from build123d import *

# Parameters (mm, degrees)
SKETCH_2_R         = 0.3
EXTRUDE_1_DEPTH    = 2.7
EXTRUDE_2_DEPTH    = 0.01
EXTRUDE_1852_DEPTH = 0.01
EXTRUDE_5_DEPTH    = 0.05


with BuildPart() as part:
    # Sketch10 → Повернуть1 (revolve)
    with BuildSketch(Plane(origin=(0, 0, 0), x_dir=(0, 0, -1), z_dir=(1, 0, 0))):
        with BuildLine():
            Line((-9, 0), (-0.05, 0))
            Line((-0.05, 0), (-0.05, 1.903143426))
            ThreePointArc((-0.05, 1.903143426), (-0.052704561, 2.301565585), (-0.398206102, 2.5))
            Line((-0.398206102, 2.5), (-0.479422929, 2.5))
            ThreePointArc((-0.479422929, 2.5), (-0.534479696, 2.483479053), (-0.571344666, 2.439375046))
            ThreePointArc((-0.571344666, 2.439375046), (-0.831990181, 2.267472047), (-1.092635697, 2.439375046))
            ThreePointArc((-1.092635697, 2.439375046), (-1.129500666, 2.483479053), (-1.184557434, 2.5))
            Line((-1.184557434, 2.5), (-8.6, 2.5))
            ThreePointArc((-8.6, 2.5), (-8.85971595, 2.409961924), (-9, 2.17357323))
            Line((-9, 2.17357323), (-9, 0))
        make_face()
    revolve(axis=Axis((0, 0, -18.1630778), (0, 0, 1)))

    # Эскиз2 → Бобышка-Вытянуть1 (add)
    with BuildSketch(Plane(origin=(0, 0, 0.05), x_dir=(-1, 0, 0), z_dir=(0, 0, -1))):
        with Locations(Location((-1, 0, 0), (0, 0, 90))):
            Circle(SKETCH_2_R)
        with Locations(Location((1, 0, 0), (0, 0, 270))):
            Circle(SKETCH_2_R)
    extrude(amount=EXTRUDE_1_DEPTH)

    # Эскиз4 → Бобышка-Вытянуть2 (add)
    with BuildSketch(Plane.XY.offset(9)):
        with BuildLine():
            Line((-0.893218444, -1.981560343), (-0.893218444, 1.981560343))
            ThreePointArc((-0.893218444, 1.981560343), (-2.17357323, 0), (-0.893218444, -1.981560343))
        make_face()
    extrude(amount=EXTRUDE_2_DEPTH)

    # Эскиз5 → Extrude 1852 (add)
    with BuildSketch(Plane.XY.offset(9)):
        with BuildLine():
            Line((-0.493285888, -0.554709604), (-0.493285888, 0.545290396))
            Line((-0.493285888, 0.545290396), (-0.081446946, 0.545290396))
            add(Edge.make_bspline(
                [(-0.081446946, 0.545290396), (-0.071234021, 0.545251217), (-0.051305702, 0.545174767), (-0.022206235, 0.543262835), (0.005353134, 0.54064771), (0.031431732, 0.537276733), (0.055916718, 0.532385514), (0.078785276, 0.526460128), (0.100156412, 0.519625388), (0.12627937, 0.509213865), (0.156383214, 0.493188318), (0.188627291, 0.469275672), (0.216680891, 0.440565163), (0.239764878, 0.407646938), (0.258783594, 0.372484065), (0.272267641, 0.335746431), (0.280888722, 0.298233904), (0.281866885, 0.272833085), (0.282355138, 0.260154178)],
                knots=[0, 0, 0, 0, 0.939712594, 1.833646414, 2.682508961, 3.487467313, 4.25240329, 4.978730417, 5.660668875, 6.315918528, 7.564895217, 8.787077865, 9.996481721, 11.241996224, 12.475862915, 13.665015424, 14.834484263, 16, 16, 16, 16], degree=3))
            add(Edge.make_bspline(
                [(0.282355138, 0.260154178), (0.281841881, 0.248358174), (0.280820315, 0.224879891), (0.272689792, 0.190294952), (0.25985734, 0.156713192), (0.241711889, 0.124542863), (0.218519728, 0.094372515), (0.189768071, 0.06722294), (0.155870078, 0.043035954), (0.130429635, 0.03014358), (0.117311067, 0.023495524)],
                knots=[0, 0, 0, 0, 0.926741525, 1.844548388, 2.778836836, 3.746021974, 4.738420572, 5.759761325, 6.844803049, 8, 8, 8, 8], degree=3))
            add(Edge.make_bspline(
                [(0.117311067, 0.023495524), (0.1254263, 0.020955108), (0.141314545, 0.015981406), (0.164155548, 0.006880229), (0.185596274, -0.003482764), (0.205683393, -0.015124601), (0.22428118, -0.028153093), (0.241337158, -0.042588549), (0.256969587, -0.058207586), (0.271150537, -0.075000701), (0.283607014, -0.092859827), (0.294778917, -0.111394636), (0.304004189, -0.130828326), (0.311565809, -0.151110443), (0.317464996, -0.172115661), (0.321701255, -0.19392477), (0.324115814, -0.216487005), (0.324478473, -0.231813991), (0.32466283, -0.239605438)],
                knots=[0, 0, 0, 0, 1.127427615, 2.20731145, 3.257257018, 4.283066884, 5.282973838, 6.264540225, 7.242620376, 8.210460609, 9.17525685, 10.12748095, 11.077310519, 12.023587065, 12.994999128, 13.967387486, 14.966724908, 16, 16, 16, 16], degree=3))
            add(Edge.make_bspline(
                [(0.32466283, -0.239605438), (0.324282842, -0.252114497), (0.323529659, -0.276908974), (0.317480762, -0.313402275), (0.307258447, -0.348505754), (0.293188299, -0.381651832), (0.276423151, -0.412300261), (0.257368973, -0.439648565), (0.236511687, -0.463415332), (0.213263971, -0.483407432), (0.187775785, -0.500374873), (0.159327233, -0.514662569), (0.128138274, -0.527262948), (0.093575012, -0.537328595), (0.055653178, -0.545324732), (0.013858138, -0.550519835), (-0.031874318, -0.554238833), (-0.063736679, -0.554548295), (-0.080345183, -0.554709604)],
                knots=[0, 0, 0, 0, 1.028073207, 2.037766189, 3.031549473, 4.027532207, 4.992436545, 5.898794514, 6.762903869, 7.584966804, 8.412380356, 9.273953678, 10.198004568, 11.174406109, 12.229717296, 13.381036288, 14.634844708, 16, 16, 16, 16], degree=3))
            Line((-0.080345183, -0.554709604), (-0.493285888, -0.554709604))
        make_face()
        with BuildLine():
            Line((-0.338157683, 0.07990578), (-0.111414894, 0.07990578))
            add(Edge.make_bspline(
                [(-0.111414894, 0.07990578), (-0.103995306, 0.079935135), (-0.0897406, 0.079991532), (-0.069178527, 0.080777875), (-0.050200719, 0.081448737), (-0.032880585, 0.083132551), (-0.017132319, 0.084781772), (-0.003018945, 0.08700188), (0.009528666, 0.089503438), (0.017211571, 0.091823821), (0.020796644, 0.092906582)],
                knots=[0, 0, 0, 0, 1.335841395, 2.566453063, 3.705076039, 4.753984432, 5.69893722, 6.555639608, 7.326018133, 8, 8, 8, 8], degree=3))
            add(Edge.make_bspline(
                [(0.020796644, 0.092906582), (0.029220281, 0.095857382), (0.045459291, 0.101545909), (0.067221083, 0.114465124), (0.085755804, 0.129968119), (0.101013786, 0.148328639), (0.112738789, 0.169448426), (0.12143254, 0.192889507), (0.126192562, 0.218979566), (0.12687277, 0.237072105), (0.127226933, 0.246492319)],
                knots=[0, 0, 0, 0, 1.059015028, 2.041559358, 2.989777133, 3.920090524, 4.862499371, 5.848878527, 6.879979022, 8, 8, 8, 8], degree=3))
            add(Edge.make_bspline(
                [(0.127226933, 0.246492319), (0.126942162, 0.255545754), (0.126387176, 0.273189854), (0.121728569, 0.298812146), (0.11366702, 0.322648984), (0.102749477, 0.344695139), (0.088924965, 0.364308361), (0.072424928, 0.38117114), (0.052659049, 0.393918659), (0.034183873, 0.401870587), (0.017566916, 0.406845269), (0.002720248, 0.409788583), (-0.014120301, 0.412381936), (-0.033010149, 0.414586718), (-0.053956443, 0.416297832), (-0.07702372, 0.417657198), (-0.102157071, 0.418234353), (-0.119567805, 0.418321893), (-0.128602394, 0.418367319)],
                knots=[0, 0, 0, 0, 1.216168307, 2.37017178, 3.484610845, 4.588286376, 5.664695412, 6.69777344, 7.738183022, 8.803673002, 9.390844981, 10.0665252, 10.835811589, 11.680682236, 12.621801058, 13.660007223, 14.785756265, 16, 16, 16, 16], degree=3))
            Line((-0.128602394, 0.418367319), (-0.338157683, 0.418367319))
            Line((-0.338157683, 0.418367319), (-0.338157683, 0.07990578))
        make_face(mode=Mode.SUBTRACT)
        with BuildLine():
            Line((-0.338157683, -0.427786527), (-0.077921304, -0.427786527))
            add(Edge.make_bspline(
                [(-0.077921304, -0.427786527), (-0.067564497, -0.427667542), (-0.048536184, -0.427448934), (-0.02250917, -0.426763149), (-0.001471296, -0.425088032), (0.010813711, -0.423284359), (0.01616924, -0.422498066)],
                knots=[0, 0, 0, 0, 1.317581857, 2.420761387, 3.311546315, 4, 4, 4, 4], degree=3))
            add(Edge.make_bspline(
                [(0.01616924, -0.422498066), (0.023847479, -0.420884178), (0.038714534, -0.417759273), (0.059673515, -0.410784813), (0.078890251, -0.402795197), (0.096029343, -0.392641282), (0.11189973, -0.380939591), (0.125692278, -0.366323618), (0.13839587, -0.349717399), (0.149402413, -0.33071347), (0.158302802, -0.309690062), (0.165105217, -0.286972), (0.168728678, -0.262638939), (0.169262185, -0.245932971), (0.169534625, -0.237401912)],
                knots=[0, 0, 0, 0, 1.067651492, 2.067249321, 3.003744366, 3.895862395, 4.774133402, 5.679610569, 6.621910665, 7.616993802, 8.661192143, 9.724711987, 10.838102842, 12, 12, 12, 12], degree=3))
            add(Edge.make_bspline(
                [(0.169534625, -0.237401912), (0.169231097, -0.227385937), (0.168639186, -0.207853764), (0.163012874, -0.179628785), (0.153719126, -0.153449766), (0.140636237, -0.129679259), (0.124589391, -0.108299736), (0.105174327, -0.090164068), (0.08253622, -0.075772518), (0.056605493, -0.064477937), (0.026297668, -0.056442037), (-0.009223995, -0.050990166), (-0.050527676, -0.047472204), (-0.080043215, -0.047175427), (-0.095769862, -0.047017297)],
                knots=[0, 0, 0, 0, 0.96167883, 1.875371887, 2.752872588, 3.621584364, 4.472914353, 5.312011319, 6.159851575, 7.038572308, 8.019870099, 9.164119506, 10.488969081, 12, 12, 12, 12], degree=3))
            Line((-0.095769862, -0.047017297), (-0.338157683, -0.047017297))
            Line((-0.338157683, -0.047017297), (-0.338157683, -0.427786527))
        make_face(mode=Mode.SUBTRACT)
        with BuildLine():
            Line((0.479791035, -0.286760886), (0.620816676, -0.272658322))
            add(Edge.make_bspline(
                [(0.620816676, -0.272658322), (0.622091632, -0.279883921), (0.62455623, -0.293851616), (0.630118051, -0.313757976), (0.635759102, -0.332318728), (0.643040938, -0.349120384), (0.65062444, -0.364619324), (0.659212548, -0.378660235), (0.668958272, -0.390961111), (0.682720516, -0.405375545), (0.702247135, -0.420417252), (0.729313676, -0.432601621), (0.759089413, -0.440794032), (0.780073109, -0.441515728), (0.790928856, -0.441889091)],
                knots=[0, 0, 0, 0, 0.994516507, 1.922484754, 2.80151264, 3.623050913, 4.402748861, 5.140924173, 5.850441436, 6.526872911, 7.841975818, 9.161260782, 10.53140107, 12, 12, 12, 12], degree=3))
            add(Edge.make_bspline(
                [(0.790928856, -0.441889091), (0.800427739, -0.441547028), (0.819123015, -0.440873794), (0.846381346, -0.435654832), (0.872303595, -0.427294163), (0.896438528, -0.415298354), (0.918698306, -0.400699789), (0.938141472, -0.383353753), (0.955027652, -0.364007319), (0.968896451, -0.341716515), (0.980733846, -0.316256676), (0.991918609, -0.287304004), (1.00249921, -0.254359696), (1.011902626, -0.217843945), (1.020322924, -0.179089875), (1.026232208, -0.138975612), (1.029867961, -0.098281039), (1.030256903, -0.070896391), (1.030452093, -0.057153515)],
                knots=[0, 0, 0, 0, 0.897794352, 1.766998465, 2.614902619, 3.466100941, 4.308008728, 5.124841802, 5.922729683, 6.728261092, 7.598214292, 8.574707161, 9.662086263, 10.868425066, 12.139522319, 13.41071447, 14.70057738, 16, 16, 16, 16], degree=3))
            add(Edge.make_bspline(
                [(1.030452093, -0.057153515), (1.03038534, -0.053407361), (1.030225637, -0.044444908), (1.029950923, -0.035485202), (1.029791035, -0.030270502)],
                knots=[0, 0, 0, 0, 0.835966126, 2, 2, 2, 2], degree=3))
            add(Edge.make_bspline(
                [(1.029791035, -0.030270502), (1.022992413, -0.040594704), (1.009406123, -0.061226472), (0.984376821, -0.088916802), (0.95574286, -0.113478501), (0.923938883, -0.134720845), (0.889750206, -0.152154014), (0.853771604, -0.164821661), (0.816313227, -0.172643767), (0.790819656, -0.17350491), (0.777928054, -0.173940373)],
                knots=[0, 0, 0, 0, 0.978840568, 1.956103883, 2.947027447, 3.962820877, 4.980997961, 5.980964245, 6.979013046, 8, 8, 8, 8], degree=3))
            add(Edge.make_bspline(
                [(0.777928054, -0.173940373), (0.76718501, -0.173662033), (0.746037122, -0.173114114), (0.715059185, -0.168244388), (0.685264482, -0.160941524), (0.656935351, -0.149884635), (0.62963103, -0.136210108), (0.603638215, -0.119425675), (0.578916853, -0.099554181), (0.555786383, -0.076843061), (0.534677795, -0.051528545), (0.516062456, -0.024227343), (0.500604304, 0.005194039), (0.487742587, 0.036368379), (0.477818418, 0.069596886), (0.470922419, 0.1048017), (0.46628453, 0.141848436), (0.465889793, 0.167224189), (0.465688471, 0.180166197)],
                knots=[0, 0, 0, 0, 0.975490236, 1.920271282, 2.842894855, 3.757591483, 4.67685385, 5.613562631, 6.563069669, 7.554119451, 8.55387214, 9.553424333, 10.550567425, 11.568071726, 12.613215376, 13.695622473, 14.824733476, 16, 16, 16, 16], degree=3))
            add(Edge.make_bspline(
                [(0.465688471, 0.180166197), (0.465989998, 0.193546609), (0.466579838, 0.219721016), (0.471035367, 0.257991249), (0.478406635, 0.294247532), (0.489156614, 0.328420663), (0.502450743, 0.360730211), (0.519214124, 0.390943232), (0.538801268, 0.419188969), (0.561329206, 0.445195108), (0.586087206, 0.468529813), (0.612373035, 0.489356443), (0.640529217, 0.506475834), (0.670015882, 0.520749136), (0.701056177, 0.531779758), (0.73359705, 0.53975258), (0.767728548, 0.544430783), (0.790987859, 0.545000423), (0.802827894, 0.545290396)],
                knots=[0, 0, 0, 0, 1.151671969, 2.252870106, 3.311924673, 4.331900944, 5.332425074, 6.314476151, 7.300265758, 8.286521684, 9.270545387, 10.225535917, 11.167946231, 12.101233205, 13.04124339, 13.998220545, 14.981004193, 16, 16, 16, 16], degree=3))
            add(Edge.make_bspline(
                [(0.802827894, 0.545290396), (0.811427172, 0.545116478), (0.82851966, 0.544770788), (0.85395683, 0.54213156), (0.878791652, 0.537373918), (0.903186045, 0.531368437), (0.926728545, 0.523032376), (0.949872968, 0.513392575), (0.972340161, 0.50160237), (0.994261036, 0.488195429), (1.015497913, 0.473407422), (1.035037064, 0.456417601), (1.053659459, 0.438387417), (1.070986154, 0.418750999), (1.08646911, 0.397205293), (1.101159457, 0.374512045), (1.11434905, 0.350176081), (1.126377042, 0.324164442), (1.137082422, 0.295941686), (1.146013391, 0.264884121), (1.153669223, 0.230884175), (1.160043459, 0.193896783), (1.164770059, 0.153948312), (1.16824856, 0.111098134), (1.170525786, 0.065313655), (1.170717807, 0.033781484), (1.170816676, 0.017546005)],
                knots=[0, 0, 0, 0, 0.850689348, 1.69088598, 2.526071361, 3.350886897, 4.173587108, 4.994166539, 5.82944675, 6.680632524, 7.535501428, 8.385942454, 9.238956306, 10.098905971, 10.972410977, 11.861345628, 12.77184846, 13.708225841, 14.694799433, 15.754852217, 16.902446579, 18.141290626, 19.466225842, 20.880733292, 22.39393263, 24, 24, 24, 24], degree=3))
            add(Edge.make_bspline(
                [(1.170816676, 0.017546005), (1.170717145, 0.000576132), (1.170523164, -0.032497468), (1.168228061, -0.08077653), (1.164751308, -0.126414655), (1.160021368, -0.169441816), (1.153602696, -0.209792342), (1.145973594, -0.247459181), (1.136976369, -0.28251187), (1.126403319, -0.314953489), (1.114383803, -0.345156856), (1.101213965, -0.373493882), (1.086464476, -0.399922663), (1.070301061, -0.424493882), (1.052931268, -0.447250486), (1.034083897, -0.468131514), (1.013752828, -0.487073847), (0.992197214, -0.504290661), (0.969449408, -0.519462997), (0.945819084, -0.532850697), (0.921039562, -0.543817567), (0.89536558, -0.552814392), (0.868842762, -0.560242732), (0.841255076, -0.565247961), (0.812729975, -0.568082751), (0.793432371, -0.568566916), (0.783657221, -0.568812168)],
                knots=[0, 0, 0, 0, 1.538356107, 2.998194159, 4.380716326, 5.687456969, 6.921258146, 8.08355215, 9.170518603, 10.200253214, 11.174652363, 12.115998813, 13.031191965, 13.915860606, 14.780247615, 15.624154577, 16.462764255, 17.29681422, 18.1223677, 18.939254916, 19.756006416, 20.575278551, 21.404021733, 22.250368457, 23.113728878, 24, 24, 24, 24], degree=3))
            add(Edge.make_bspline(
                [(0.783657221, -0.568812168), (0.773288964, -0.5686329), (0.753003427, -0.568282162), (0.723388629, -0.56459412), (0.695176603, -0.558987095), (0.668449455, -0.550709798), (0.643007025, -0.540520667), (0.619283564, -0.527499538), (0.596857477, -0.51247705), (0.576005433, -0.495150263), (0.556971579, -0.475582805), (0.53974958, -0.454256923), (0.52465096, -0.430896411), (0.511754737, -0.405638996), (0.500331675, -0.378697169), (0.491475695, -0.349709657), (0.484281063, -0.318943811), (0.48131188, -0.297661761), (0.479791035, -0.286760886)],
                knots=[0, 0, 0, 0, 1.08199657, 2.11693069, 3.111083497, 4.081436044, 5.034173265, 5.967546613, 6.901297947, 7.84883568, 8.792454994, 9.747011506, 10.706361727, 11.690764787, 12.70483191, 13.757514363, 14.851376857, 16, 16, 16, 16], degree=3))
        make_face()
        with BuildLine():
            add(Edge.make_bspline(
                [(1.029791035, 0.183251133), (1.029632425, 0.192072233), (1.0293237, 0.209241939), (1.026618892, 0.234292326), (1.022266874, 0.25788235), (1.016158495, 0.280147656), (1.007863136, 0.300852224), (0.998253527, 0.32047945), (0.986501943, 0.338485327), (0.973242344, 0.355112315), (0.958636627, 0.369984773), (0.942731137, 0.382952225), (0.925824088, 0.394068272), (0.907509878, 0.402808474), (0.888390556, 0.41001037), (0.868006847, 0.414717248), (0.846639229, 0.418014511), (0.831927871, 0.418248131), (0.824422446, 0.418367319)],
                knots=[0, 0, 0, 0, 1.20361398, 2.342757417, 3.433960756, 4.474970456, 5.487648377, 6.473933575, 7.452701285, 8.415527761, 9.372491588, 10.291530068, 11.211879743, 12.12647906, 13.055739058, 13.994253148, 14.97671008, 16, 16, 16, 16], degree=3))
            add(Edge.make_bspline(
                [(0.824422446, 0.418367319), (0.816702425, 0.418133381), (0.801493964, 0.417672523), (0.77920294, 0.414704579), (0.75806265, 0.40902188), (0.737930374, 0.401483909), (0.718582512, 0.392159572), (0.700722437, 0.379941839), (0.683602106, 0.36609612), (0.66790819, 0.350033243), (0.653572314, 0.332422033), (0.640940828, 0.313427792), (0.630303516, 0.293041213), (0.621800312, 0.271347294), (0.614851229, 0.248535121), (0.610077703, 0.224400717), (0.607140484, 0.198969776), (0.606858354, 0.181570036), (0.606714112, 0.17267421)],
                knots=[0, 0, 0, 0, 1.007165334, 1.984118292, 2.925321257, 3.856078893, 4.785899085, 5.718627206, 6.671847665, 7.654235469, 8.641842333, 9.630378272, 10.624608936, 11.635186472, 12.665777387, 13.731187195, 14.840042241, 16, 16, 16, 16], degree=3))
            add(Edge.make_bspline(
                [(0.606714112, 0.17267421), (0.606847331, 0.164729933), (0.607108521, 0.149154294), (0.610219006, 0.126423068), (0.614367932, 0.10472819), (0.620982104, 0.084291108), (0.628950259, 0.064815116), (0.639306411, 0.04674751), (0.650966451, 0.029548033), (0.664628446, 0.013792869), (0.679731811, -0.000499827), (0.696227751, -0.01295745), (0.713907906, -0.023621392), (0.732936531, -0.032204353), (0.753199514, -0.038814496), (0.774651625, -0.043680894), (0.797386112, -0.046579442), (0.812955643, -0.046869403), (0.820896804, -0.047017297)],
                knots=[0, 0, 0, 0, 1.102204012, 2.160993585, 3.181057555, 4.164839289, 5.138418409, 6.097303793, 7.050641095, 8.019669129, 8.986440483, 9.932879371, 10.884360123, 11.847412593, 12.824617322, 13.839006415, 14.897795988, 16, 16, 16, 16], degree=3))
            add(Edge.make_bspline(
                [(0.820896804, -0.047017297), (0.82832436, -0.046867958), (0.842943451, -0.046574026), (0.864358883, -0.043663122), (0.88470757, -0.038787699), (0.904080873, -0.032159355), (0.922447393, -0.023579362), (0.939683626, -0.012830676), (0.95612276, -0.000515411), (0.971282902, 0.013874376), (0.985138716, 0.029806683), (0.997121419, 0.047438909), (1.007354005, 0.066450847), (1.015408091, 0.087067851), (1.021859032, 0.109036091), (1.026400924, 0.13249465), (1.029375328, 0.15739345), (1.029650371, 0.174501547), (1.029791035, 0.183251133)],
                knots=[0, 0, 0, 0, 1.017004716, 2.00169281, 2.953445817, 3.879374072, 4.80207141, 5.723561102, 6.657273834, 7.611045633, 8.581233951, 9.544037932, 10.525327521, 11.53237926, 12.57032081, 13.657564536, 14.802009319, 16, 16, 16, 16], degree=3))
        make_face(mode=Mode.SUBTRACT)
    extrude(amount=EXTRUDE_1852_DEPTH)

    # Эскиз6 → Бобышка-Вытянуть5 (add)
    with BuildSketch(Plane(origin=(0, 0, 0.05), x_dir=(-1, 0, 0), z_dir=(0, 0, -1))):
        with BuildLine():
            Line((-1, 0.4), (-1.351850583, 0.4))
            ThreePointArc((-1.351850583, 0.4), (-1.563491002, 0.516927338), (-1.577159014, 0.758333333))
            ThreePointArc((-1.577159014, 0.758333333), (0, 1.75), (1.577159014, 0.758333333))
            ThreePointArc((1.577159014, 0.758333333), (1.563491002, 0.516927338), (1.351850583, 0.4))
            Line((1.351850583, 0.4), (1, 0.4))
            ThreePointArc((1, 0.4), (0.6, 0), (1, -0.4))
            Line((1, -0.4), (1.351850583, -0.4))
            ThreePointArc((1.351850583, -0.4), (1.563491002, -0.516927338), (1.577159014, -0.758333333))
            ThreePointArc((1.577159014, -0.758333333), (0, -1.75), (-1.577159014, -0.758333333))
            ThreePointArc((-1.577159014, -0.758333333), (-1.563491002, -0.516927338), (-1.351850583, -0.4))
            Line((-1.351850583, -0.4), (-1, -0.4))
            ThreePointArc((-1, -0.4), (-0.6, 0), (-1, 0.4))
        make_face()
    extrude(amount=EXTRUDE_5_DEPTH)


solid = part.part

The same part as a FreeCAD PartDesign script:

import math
import FreeCAD as App
import Part
import Sketcher
Q = App.Units.Quantity

doc = App.newDocument("Part")
body = doc.addObject("PartDesign::Body", "Body")

sketch1 = body.newObject("Sketcher::SketchObject", "Sketch")
sketch1.AttachmentSupport = (doc.getObject("YZ_Plane"), [""])
sketch1.MapMode = "FlatFace"
sketch1.addGeometry([
    Part.LineSegment(App.Vector(0, 9, 0), App.Vector(0, 0.05, 0)),
    Part.LineSegment(App.Vector(0, 0.05, 0), App.Vector(1.9, 0.05, 0)),
    Part.ArcOfCircle(Part.Circle(App.Vector(2.1, 0.4, 0), App.Vector(0, 0, 1), 0.4), math.radians(-119), math.radians(0)),
    Part.LineSegment(App.Vector(2.5, 0.4, 0), App.Vector(2.5, 0.48, 0)),
    Part.ArcOfCircle(Part.Circle(App.Vector(2.4, 0.48, 0), App.Vector(0, 0, 1), 0.1), math.radians(0), math.radians(67)),
    Part.ArcOfCircle(Part.Circle(App.Vector(2.55, 0.83, 0), App.Vector(0, 0, 1), 0.28), math.radians(113), math.radians(247)),
    Part.ArcOfCircle(Part.Circle(App.Vector(2.4, 1.18, 0), App.Vector(0, 0, 1), 0.1), math.radians(-67), math.radians(0)),
    Part.LineSegment(App.Vector(2.5, 1.18, 0), App.Vector(2.5, 8.6, 0)),
    Part.ArcOfCircle(Part.Circle(App.Vector(2.1, 8.61, 0), App.Vector(0, 0, 1), 0.4), math.radians(-1), math.radians(79)),
    Part.LineSegment(App.Vector(2.17, 9, 0), App.Vector(0, 9, 0)),
], False)
sketch1.addConstraint([
    Sketcher.Constraint("Coincident", 0, 2, 1, 1),
    Sketcher.Constraint("Coincident", 1, 2, 2, 1),
    Sketcher.Constraint("Tangent", 2, 2, 3, 1),
    Sketcher.Constraint("Tangent", 3, 2, 4, 1),
    Sketcher.Constraint("Tangent", 4, 2, 5, 2),
    Sketcher.Constraint("Tangent", 5, 1, 6, 1),
    Sketcher.Constraint("Tangent", 6, 2, 7, 1),
    Sketcher.Constraint("Coincident", 7, 2, 8, 1),
    Sketcher.Constraint("Coincident", 8, 2, 9, 1),
    Sketcher.Constraint("Coincident", 9, 2, 0, 1),
    Sketcher.Constraint("Vertical", 0),
    Sketcher.Constraint("Horizontal", 1),
    Sketcher.Constraint("Vertical", 3),
    Sketcher.Constraint("Vertical", 7),
    Sketcher.Constraint("Horizontal", 9),
    Sketcher.Constraint("Equal", 4, 6),
    Sketcher.Constraint("Equal", 2, 8),
    Sketcher.Constraint("PointOnObject", 0, 2, -2),
    Sketcher.Constraint("Vertical", 4, 3, 6, 3),
    Sketcher.Constraint("Radius", 2, Q("0.4 mm")),
    Sketcher.Constraint("Radius", 4, Q("0.1 mm")),
    Sketcher.Constraint("DistanceY", -1, 1, 8, 2, Q("9 mm")),
    Sketcher.Constraint("DistanceY", 0, 2, 0, 1, Q("8.95 mm")),
    Sketcher.Constraint("DistanceX", -1, 1, 2, 3, Q("2.1 mm")),
    Sketcher.Constraint("DistanceY", -1, 1, 7, 2, Q("8.6 mm")),
    Sketcher.Constraint("Radius", 5, Q("0.283552 mm")),
    Sketcher.Constraint("DistanceX", 8, 2, 5, 1, Q("0.265802 mm")),
    Sketcher.Constraint("DistanceX", 1, 1, 1, 2, Q("1.903143 mm")),
    Sketcher.Constraint("DistanceX", 9, 2, 9, 1, Q("2.173573 mm")),
    Sketcher.Constraint("DistanceY", 3, 1, 3, 2, Q("0.081217 mm")),
])
revolution = body.newObject("PartDesign::Revolution", "Revolution")
revolution.Profile = sketch1
revolution.ReferenceAxis = (sketch1, ["V_Axis"])
revolution.Angle = 360

sketch2 = body.newObject("Sketcher::SketchObject", "Sketch001")
sketch2.AttachmentSupport = (doc.getObject("XY_Plane"), [""])
sketch2.MapMode = "FlatFace"
sketch2.AttachmentOffset = App.Placement(App.Vector(0, 0, 0.05), App.Rotation())
sketch2.addGeometry([
    Part.Circle(App.Vector(1, 0, 0), App.Vector(0, 0, 1), 0.3),
    Part.Circle(App.Vector(-1, 0, 0), App.Vector(0, 0, 1), 0.3),
], False)
sketch2.addConstraint([
    Sketcher.Constraint("Equal", 0, 1),
    Sketcher.Constraint("Symmetric", 0, 3, 1, 3, -1, 1),
    Sketcher.Constraint("PointOnObject", 0, 3, -1),
    Sketcher.Constraint("Diameter", 0, Q("0.6 mm")),
    Sketcher.Constraint("DistanceX", -1, 1, 0, 3, Q("1 mm")),
])
pad1 = body.newObject("PartDesign::Pad", "Pad")
pad1.Profile = sketch2
pad1.Length = 2.7
pad1.Reversed = True

sketch3 = body.newObject("Sketcher::SketchObject", "Sketch002")
sketch3.AttachmentSupport = (doc.getObject("XY_Plane"), [""])
sketch3.MapMode = "FlatFace"
sketch3.AttachmentOffset = App.Placement(App.Vector(0, 0, 9), App.Rotation())
sketch3.addGeometry([
    Part.LineSegment(App.Vector(-0.9, -2, 0), App.Vector(-0.9, 2, 0)),
    Part.ArcOfCircle(Part.Circle(App.Vector(0, 0, 0), App.Vector(0, 0, 1), 2.2), math.radians(114), math.radians(246)),
], False)
sketch3.addConstraint([
    Sketcher.Constraint("Coincident", 0, 1, 1, 2),
    Sketcher.Constraint("Coincident", 1, 1, 0, 2),
    Sketcher.Constraint("Vertical", 0),
    Sketcher.Constraint("Coincident", 1, 3, -1, 1),
    Sketcher.Constraint("Radius", 1, Q("2.173573 mm")),
    Sketcher.Constraint("DistanceY", 0, 1, 0, 2, Q("3.963121 mm")),
])
pad2 = body.newObject("PartDesign::Pad", "Pad001")
pad2.Profile = sketch3
pad2.Length = 0.01

sketch4 = body.newObject("Sketcher::SketchObject", "Sketch003")
sketch4.AttachmentSupport = (doc.getObject("XY_Plane"), [""])
sketch4.MapMode = "FlatFace"
sketch4.AttachmentOffset = App.Placement(App.Vector(0, 0, 9), App.Rotation())
sketch4.addGeometry([
    Part.LineSegment(App.Vector(-0.493286, 0.54529, 0), App.Vector(-0.493286, -0.55471, 0)),
    Part.LineSegment(App.Vector(-0.493286, -0.55471, 0), App.Vector(-0.080345, -0.55471, 0)),
    Part.BSplineCurve([App.Vector(0.324663, -0.239605, 0), App.Vector(0.324283, -0.252114, 0), App.Vector(0.32353, -0.276909, 0), App.Vector(0.317481, -0.313402, 0), App.Vector(0.307258, -0.348506, 0), App.Vector(0.293188, -0.381652, 0), App.Vector(0.276423, -0.4123, 0), App.Vector(0.257369, -0.439649, 0), App.Vector(0.236512, -0.463415, 0), App.Vector(0.213264, -0.483407, 0), App.Vector(0.187776, -0.500375, 0), App.Vector(0.159327, -0.514663, 0), App.Vector(0.128138, -0.527263, 0), App.Vector(0.093575, -0.537329, 0), App.Vector(0.055653, -0.545325, 0), App.Vector(0.013858, -0.55052, 0), App.Vector(-0.031874, -0.554239, 0), App.Vector(-0.063737, -0.554548, 0), App.Vector(-0.080345, -0.55471, 0)], [4, 1, 1, 1, 1, 1, 1, 1, 1, 1, 1, 1, 1, 1, 1, 1, 4], [0, 1.028073207, 2.037766189, 3.031549473, 4.027532207, 4.992436545, 5.898794514, 6.762903869, 7.584966804, 8.412380356, 9.273953678, 10.198004568, 11.174406109, 12.229717296, 13.381036288, 14.634844708, 16], False, 3, [1, 1, 1, 1, 1, 1, 1, 1, 1, 1, 1, 1, 1, 1, 1, 1, 1, 1, 1], False),
    Part.BSplineCurve([App.Vector(0.117311, 0.023496, 0), App.Vector(0.125426, 0.020955, 0), App.Vector(0.141315, 0.015981, 0), App.Vector(0.164156, 0.00688, 0), App.Vector(0.185596, -0.003483, 0), App.Vector(0.205683, -0.015125, 0), App.Vector(0.224281, -0.028153, 0), App.Vector(0.241337, -0.042589, 0), App.Vector(0.25697, -0.058208, 0), App.Vector(0.271151, -0.075001, 0), App.Vector(0.283607, -0.09286, 0), App.Vector(0.294779, -0.111395, 0), App.Vector(0.304004, -0.130828, 0), App.Vector(0.311566, -0.15111, 0), App.Vector(0.317465, -0.172116, 0), App.Vector(0.321701, -0.193925, 0), App.Vector(0.324116, -0.216487, 0), App.Vector(0.324478, -0.231814, 0), App.Vector(0.324663, -0.239605, 0)], [4, 1, 1, 1, 1, 1, 1, 1, 1, 1, 1, 1, 1, 1, 1, 1, 4], [0, 1.127427615, 2.20731145, 3.257257018, 4.283066884, 5.282973838, 6.264540225, 7.242620376, 8.210460609, 9.17525685, 10.12748095, 11.077310519, 12.023587065, 12.994999128, 13.967387486, 14.966724908, 16], False, 3, [1, 1, 1, 1, 1, 1, 1, 1, 1, 1, 1, 1, 1, 1, 1, 1, 1, 1, 1], False),
    Part.BSplineCurve([App.Vector(0.282355, 0.260154, 0), App.Vector(0.281842, 0.248358, 0), App.Vector(0.28082, 0.22488, 0), App.Vector(0.27269, 0.190295, 0), App.Vector(0.259857, 0.156713, 0), App.Vector(0.241712, 0.124543, 0), App.Vector(0.21852, 0.094373, 0), App.Vector(0.189768, 0.067223, 0), App.Vector(0.15587, 0.043036, 0), App.Vector(0.13043, 0.030144, 0), App.Vector(0.117311, 0.023496, 0)], [4, 1, 1, 1, 1, 1, 1, 1, 4], [0, 0.926741525, 1.844548388, 2.778836836, 3.746021974, 4.738420572, 5.759761325, 6.844803049, 8], False, 3, [1, 1, 1, 1, 1, 1, 1, 1, 1, 1, 1], False),
    Part.BSplineCurve([App.Vector(-0.081447, 0.54529, 0), App.Vector(-0.071234, 0.545251, 0), App.Vector(-0.051306, 0.545175, 0), App.Vector(-0.022206, 0.543263, 0), App.Vector(0.005353, 0.540648, 0), App.Vector(0.031432, 0.537277, 0), App.Vector(0.055917, 0.532386, 0), App.Vector(0.078785, 0.52646, 0), App.Vector(0.100156, 0.519625, 0), App.Vector(0.126279, 0.509214, 0), App.Vector(0.156383, 0.493188, 0), App.Vector(0.188627, 0.469276, 0), App.Vector(0.216681, 0.440565, 0), App.Vector(0.239765, 0.407647, 0), App.Vector(0.258784, 0.372484, 0), App.Vector(0.272268, 0.335746, 0), App.Vector(0.280889, 0.298234, 0), App.Vector(0.281867, 0.272833, 0), App.Vector(0.282355, 0.260154, 0)], [4, 1, 1, 1, 1, 1, 1, 1, 1, 1, 1, 1, 1, 1, 1, 1, 4], [0, 0.939712594, 1.833646414, 2.682508961, 3.487467313, 4.25240329, 4.978730417, 5.660668875, 6.315918528, 7.564895217, 8.787077865, 9.996481721, 11.241996224, 12.475862915, 13.665015424, 14.834484263, 16], False, 3, [1, 1, 1, 1, 1, 1, 1, 1, 1, 1, 1, 1, 1, 1, 1, 1, 1, 1, 1], False),
    Part.LineSegment(App.Vector(-0.081447, 0.54529, 0), App.Vector(-0.493286, 0.54529, 0)),
    Part.LineSegment(App.Vector(-0.338158, -0.427787, 0), App.Vector(-0.338158, -0.047017, 0)),
    Part.LineSegment(App.Vector(-0.338158, -0.047017, 0), App.Vector(-0.09577, -0.047017, 0)),
    Part.BSplineCurve([App.Vector(0.169535, -0.237402, 0), App.Vector(0.169231, -0.227386, 0), App.Vector(0.168639, -0.207854, 0), App.Vector(0.163013, -0.179629, 0), App.Vector(0.153719, -0.15345, 0), App.Vector(0.140636, -0.129679, 0), App.Vector(0.124589, -0.1083, 0), App.Vector(0.105174, -0.090164, 0), App.Vector(0.082536, -0.075773, 0), App.Vector(0.056605, -0.064478, 0), App.Vector(0.026298, -0.056442, 0), App.Vector(-0.009224, -0.05099, 0), App.Vector(-0.050528, -0.047472, 0), App.Vector(-0.080043, -0.047175, 0), App.Vector(-0.09577, -0.047017, 0)], [4, 1, 1, 1, 1, 1, 1, 1, 1, 1, 1, 1, 4], [0, 0.96167883, 1.875371887, 2.752872588, 3.621584364, 4.472914353, 5.312011319, 6.159851575, 7.038572308, 8.019870099, 9.164119506, 10.488969081, 12], False, 3, [1, 1, 1, 1, 1, 1, 1, 1, 1, 1, 1, 1, 1, 1, 1], False),
    Part.BSplineCurve([App.Vector(0.016169, -0.422498, 0), App.Vector(0.023847, -0.420884, 0), App.Vector(0.038715, -0.417759, 0), App.Vector(0.059674, -0.410785, 0), App.Vector(0.07889, -0.402795, 0), App.Vector(0.096029, -0.392641, 0), App.Vector(0.1119, -0.38094, 0), App.Vector(0.125692, -0.366324, 0), App.Vector(0.138396, -0.349717, 0), App.Vector(0.149402, -0.330713, 0), App.Vector(0.158303, -0.30969, 0), App.Vector(0.165105, -0.286972, 0), App.Vector(0.168729, -0.262639, 0), App.Vector(0.169262, -0.245933, 0), App.Vector(0.169535, -0.237402, 0)], [4, 1, 1, 1, 1, 1, 1, 1, 1, 1, 1, 1, 4], [0, 1.067651492, 2.067249321, 3.003744366, 3.895862395, 4.774133402, 5.679610569, 6.621910665, 7.616993802, 8.661192143, 9.724711987, 10.838102842, 12], False, 3, [1, 1, 1, 1, 1, 1, 1, 1, 1, 1, 1, 1, 1, 1, 1], False),
    Part.BSplineCurve([App.Vector(-0.077921, -0.427787, 0), App.Vector(-0.067564, -0.427668, 0), App.Vector(-0.048536, -0.427449, 0), App.Vector(-0.022509, -0.426763, 0), App.Vector(-0.001471, -0.425088, 0), App.Vector(0.010814, -0.423284, 0), App.Vector(0.016169, -0.422498, 0)], [4, 1, 1, 1, 4], [0, 1.317581857, 2.420761387, 3.311546315, 4], False, 3, [1, 1, 1, 1, 1, 1, 1], False),
    Part.LineSegment(App.Vector(-0.077921, -0.427787, 0), App.Vector(-0.338158, -0.427787, 0)),
    Part.LineSegment(App.Vector(-0.338158, 0.079906, 0), App.Vector(-0.338158, 0.418367, 0)),
    Part.LineSegment(App.Vector(-0.338158, 0.418367, 0), App.Vector(-0.128602, 0.418367, 0)),
    Part.BSplineCurve([App.Vector(0.127227, 0.246492, 0), App.Vector(0.126942, 0.255546, 0), App.Vector(0.126387, 0.27319, 0), App.Vector(0.121729, 0.298812, 0), App.Vector(0.113667, 0.322649, 0), App.Vector(0.102749, 0.344695, 0), App.Vector(0.088925, 0.364308, 0), App.Vector(0.072425, 0.381171, 0), App.Vector(0.052659, 0.393919, 0), App.Vector(0.034184, 0.401871, 0), App.Vector(0.017567, 0.406845, 0), App.Vector(0.00272, 0.409789, 0), App.Vector(-0.01412, 0.412382, 0), App.Vector(-0.03301, 0.414587, 0), App.Vector(-0.053956, 0.416298, 0), App.Vector(-0.077024, 0.417657, 0), App.Vector(-0.102157, 0.418234, 0), App.Vector(-0.119568, 0.418322, 0), App.Vector(-0.128602, 0.418367, 0)], [4, 1, 1, 1, 1, 1, 1, 1, 1, 1, 1, 1, 1, 1, 1, 1, 4], [0, 1.216168307, 2.37017178, 3.484610845, 4.588286376, 5.664695412, 6.69777344, 7.738183022, 8.803673002, 9.390844981, 10.0665252, 10.835811589, 11.680682236, 12.621801058, 13.660007223, 14.785756265, 16], False, 3, [1, 1, 1, 1, 1, 1, 1, 1, 1, 1, 1, 1, 1, 1, 1, 1, 1, 1, 1], False),
    Part.BSplineCurve([App.Vector(0.020797, 0.092907, 0), App.Vector(0.02922, 0.095857, 0), App.Vector(0.045459, 0.101546, 0), App.Vector(0.067221, 0.114465, 0), App.Vector(0.085756, 0.129968, 0), App.Vector(0.101014, 0.148329, 0), App.Vector(0.112739, 0.169448, 0), App.Vector(0.121433, 0.19289, 0), App.Vector(0.126193, 0.21898, 0), App.Vector(0.126873, 0.237072, 0), App.Vector(0.127227, 0.246492, 0)], [4, 1, 1, 1, 1, 1, 1, 1, 4], [0, 1.059015028, 2.041559358, 2.989777133, 3.920090524, 4.862499371, 5.848878527, 6.879979022, 8], False, 3, [1, 1, 1, 1, 1, 1, 1, 1, 1, 1, 1], False),
    Part.BSplineCurve([App.Vector(-0.111415, 0.079906, 0), App.Vector(-0.103995, 0.079935, 0), App.Vector(-0.089741, 0.079992, 0), App.Vector(-0.069179, 0.080778, 0), App.Vector(-0.050201, 0.081449, 0), App.Vector(-0.032881, 0.083133, 0), App.Vector(-0.017132, 0.084782, 0), App.Vector(-0.003019, 0.087002, 0), App.Vector(0.009529, 0.089503, 0), App.Vector(0.017212, 0.091824, 0), App.Vector(0.020797, 0.092907, 0)], [4, 1, 1, 1, 1, 1, 1, 1, 4], [0, 1.335841395, 2.566453063, 3.705076039, 4.753984432, 5.69893722, 6.555639608, 7.326018133, 8], False, 3, [1, 1, 1, 1, 1, 1, 1, 1, 1, 1, 1], False),
    Part.LineSegment(App.Vector(-0.111415, 0.079906, 0), App.Vector(-0.338158, 0.079906, 0)),
    Part.LineSegment(App.Vector(0.620817, -0.272658, 0), App.Vector(0.479791, -0.286761, 0)),
    Part.BSplineCurve([App.Vector(0.783657, -0.568812, 0), App.Vector(0.773289, -0.568633, 0), App.Vector(0.753003, -0.568282, 0), App.Vector(0.723389, -0.564594, 0), App.Vector(0.695177, -0.558987, 0), App.Vector(0.668449, -0.55071, 0), App.Vector(0.643007, -0.540521, 0), App.Vector(0.619284, -0.5275, 0), App.Vector(0.596857, -0.512477, 0), App.Vector(0.576005, -0.49515, 0), App.Vector(0.556972, -0.475583, 0), App.Vector(0.53975, -0.454257, 0), App.Vector(0.524651, -0.430896, 0), App.Vector(0.511755, -0.405639, 0), App.Vector(0.500332, -0.378697, 0), App.Vector(0.491476, -0.34971, 0), App.Vector(0.484281, -0.318944, 0), App.Vector(0.481312, -0.297662, 0), App.Vector(0.479791, -0.286761, 0)], [4, 1, 1, 1, 1, 1, 1, 1, 1, 1, 1, 1, 1, 1, 1, 1, 4], [0, 1.08199657, 2.11693069, 3.111083497, 4.081436044, 5.034173265, 5.967546613, 6.901297947, 7.84883568, 8.792454994, 9.747011506, 10.706361727, 11.690764787, 12.70483191, 13.757514363, 14.851376857, 16], False, 3, [1, 1, 1, 1, 1, 1, 1, 1, 1, 1, 1, 1, 1, 1, 1, 1, 1, 1, 1], False),
    Part.BSplineCurve([App.Vector(1.170817, 0.017546, 0), App.Vector(1.170717, 0.000576, 0), App.Vector(1.170523, -0.032497, 0), App.Vector(1.168228, -0.080777, 0), App.Vector(1.164751, -0.126415, 0), App.Vector(1.160021, -0.169442, 0), App.Vector(1.153603, -0.209792, 0), App.Vector(1.145974, -0.247459, 0), App.Vector(1.136976, -0.282512, 0), App.Vector(1.126403, -0.314953, 0), App.Vector(1.114384, -0.345157, 0), App.Vector(1.101214, -0.373494, 0), App.Vector(1.086464, -0.399923, 0), App.Vector(1.070301, -0.424494, 0), App.Vector(1.052931, -0.44725, 0), App.Vector(1.034084, -0.468132, 0), App.Vector(1.013753, -0.487074, 0), App.Vector(0.992197, -0.504291, 0), App.Vector(0.969449, -0.519463, 0), App.Vector(0.945819, -0.532851, 0), App.Vector(0.92104, -0.543818, 0), App.Vector(0.895366, -0.552814, 0), App.Vector(0.868843, -0.560243, 0), App.Vector(0.841255, -0.565248, 0), App.Vector(0.81273, -0.568083, 0), App.Vector(0.793432, -0.568567, 0), App.Vector(0.783657, -0.568812, 0)], [4, 1, 1, 1, 1, 1, 1, 1, 1, 1, 1, 1, 1, 1, 1, 1, 1, 1, 1, 1, 1, 1, 1, 1, 4], [0, 1.538356107, 2.998194159, 4.380716326, 5.687456969, 6.921258146, 8.08355215, 9.170518603, 10.200253214, 11.174652363, 12.115998813, 13.031191965, 13.915860606, 14.780247615, 15.624154577, 16.462764255, 17.29681422, 18.1223677, 18.939254916, 19.756006416, 20.575278551, 21.404021733, 22.250368457, 23.113728878, 24], False, 3, [1, 1, 1, 1, 1, 1, 1, 1, 1, 1, 1, 1, 1, 1, 1, 1, 1, 1, 1, 1, 1, 1, 1, 1, 1, 1, 1], False),
    Part.BSplineCurve([App.Vector(0.802828, 0.54529, 0), App.Vector(0.811427, 0.545116, 0), App.Vector(0.82852, 0.544771, 0), App.Vector(0.853957, 0.542132, 0), App.Vector(0.878792, 0.537374, 0), App.Vector(0.903186, 0.531368, 0), App.Vector(0.926729, 0.523032, 0), App.Vector(0.949873, 0.513393, 0), App.Vector(0.97234, 0.501602, 0), App.Vector(0.994261, 0.488195, 0), App.Vector(1.015498, 0.473407, 0), App.Vector(1.035037, 0.456418, 0), App.Vector(1.053659, 0.438387, 0), App.Vector(1.070986, 0.418751, 0), App.Vector(1.086469, 0.397205, 0), App.Vector(1.101159, 0.374512, 0), App.Vector(1.114349, 0.350176, 0), App.Vector(1.126377, 0.324164, 0), App.Vector(1.137082, 0.295942, 0), App.Vector(1.146013, 0.264884, 0), App.Vector(1.153669, 0.230884, 0), App.Vector(1.160043, 0.193897, 0), App.Vector(1.16477, 0.153948, 0), App.Vector(1.168249, 0.111098, 0), App.Vector(1.170526, 0.065314, 0), App.Vector(1.170718, 0.033781, 0), App.Vector(1.170817, 0.017546, 0)], [4, 1, 1, 1, 1, 1, 1, 1, 1, 1, 1, 1, 1, 1, 1, 1, 1, 1, 1, 1, 1, 1, 1, 1, 4], [0, 0.850689348, 1.69088598, 2.526071361, 3.350886897, 4.173587108, 4.994166539, 5.82944675, 6.680632524, 7.535501428, 8.385942454, 9.238956306, 10.098905971, 10.972410977, 11.861345628, 12.77184846, 13.708225841, 14.694799433, 15.754852217, 16.902446579, 18.141290626, 19.466225842, 20.880733292, 22.39393263, 24], False, 3, [1, 1, 1, 1, 1, 1, 1, 1, 1, 1, 1, 1, 1, 1, 1, 1, 1, 1, 1, 1, 1, 1, 1, 1, 1, 1, 1], False),
    Part.BSplineCurve([App.Vector(0.465688, 0.180166, 0), App.Vector(0.46599, 0.193547, 0), App.Vector(0.46658, 0.219721, 0), App.Vector(0.471035, 0.257991, 0), App.Vector(0.478407, 0.294248, 0), App.Vector(0.489157, 0.328421, 0), App.Vector(0.502451, 0.36073, 0), App.Vector(0.519214, 0.390943, 0), App.Vector(0.538801, 0.419189, 0), App.Vector(0.561329, 0.445195, 0), App.Vector(0.586087, 0.46853, 0), App.Vector(0.612373, 0.489356, 0), App.Vector(0.640529, 0.506476, 0), App.Vector(0.670016, 0.520749, 0), App.Vector(0.701056, 0.53178, 0), App.Vector(0.733597, 0.539753, 0), App.Vector(0.767729, 0.544431, 0), App.Vector(0.790988, 0.545, 0), App.Vector(0.802828, 0.54529, 0)], [4, 1, 1, 1, 1, 1, 1, 1, 1, 1, 1, 1, 1, 1, 1, 1, 4], [0, 1.151671969, 2.252870106, 3.311924673, 4.331900944, 5.332425074, 6.314476151, 7.300265758, 8.286521684, 9.270545387, 10.225535917, 11.167946231, 12.101233205, 13.04124339, 13.998220545, 14.981004193, 16], False, 3, [1, 1, 1, 1, 1, 1, 1, 1, 1, 1, 1, 1, 1, 1, 1, 1, 1, 1, 1], False),
    Part.BSplineCurve([App.Vector(0.777928, -0.17394, 0), App.Vector(0.767185, -0.173662, 0), App.Vector(0.746037, -0.173114, 0), App.Vector(0.715059, -0.168244, 0), App.Vector(0.685264, -0.160942, 0), App.Vector(0.656935, -0.149885, 0), App.Vector(0.629631, -0.13621, 0), App.Vector(0.603638, -0.119426, 0), App.Vector(0.578917, -0.099554, 0), App.Vector(0.555786, -0.076843, 0), App.Vector(0.534678, -0.051529, 0), App.Vector(0.516062, -0.024227, 0), App.Vector(0.500604, 0.005194, 0), App.Vector(0.487743, 0.036368, 0), App.Vector(0.477818, 0.069597, 0), App.Vector(0.470922, 0.104802, 0), App.Vector(0.466285, 0.141848, 0), App.Vector(0.46589, 0.167224, 0), App.Vector(0.465688, 0.180166, 0)], [4, 1, 1, 1, 1, 1, 1, 1, 1, 1, 1, 1, 1, 1, 1, 1, 4], [0, 0.975490236, 1.920271282, 2.842894855, 3.757591483, 4.67685385, 5.613562631, 6.563069669, 7.554119451, 8.55387214, 9.553424333, 10.550567425, 11.568071726, 12.613215376, 13.695622473, 14.824733476, 16], False, 3, [1, 1, 1, 1, 1, 1, 1, 1, 1, 1, 1, 1, 1, 1, 1, 1, 1, 1, 1], False),
    Part.BSplineCurve([App.Vector(1.029791, -0.030271, 0), App.Vector(1.022992, -0.040595, 0), App.Vector(1.009406, -0.061226, 0), App.Vector(0.984377, -0.088917, 0), App.Vector(0.955743, -0.113479, 0), App.Vector(0.923939, -0.134721, 0), App.Vector(0.88975, -0.152154, 0), App.Vector(0.853772, -0.164822, 0), App.Vector(0.816313, -0.172644, 0), App.Vector(0.79082, -0.173505, 0), App.Vector(0.777928, -0.17394, 0)], [4, 1, 1, 1, 1, 1, 1, 1, 4], [0, 0.978840568, 1.956103883, 2.947027447, 3.962820877, 4.980997961, 5.980964245, 6.979013046, 8], False, 3, [1, 1, 1, 1, 1, 1, 1, 1, 1, 1, 1], False),
    Part.BSplineCurve([App.Vector(1.030452, -0.057154, 0), App.Vector(1.030385, -0.053407, 0), App.Vector(1.030226, -0.044445, 0), App.Vector(1.029951, -0.035485, 0), App.Vector(1.029791, -0.030271, 0)], [4, 1, 4], [0, 0.835966126, 2], False, 3, [1, 1, 1, 1, 1], False),
    Part.BSplineCurve([App.Vector(0.790929, -0.441889, 0), App.Vector(0.800428, -0.441547, 0), App.Vector(0.819123, -0.440874, 0), App.Vector(0.846381, -0.435655, 0), App.Vector(0.872304, -0.427294, 0), App.Vector(0.896439, -0.415298, 0), App.Vector(0.918698, -0.4007, 0), App.Vector(0.938141, -0.383354, 0), App.Vector(0.955028, -0.364007, 0), App.Vector(0.968896, -0.341717, 0), App.Vector(0.980734, -0.316257, 0), App.Vector(0.991919, -0.287304, 0), App.Vector(1.002499, -0.25436, 0), App.Vector(1.011903, -0.217844, 0), App.Vector(1.020323, -0.17909, 0), App.Vector(1.026232, -0.138976, 0), App.Vector(1.029868, -0.098281, 0), App.Vector(1.030257, -0.070896, 0), App.Vector(1.030452, -0.057154, 0)], [4, 1, 1, 1, 1, 1, 1, 1, 1, 1, 1, 1, 1, 1, 1, 1, 4], [0, 0.897794352, 1.766998465, 2.614902619, 3.466100941, 4.308008728, 5.124841802, 5.922729683, 6.728261092, 7.598214292, 8.574707161, 9.662086263, 10.868425066, 12.139522319, 13.41071447, 14.70057738, 16], False, 3, [1, 1, 1, 1, 1, 1, 1, 1, 1, 1, 1, 1, 1, 1, 1, 1, 1, 1, 1], False),
    Part.BSplineCurve([App.Vector(0.620817, -0.272658, 0), App.Vector(0.622092, -0.279884, 0), App.Vector(0.624556, -0.293852, 0), App.Vector(0.630118, -0.313758, 0), App.Vector(0.635759, -0.332319, 0), App.Vector(0.643041, -0.34912, 0), App.Vector(0.650624, -0.364619, 0), App.Vector(0.659213, -0.37866, 0), App.Vector(0.668958, -0.390961, 0), App.Vector(0.682721, -0.405376, 0), App.Vector(0.702247, -0.420417, 0), App.Vector(0.729314, -0.432602, 0), App.Vector(0.759089, -0.440794, 0), App.Vector(0.780073, -0.441516, 0), App.Vector(0.790929, -0.441889, 0)], [4, 1, 1, 1, 1, 1, 1, 1, 1, 1, 1, 1, 4], [0, 0.994516507, 1.922484754, 2.80151264, 3.623050913, 4.402748861, 5.140924173, 5.850441436, 6.526872911, 7.841975818, 9.161260782, 10.53140107, 12], False, 3, [1, 1, 1, 1, 1, 1, 1, 1, 1, 1, 1, 1, 1, 1, 1], False),
    Part.BSplineCurve([App.Vector(0.820897, -0.047017, 0), App.Vector(0.828324, -0.046868, 0), App.Vector(0.842943, -0.046574, 0), App.Vector(0.864359, -0.043663, 0), App.Vector(0.884708, -0.038788, 0), App.Vector(0.904081, -0.032159, 0), App.Vector(0.922447, -0.023579, 0), App.Vector(0.939684, -0.012831, 0), App.Vector(0.956123, -0.000515, 0), App.Vector(0.971283, 0.013874, 0), App.Vector(0.985139, 0.029807, 0), App.Vector(0.997121, 0.047439, 0), App.Vector(1.007354, 0.066451, 0), App.Vector(1.015408, 0.087068, 0), App.Vector(1.021859, 0.109036, 0), App.Vector(1.026401, 0.132495, 0), App.Vector(1.029375, 0.157393, 0), App.Vector(1.02965, 0.174502, 0), App.Vector(1.029791, 0.183251, 0)], [4, 1, 1, 1, 1, 1, 1, 1, 1, 1, 1, 1, 1, 1, 1, 1, 4], [0, 1.017004716, 2.00169281, 2.953445817, 3.879374072, 4.80207141, 5.723561102, 6.657273834, 7.611045633, 8.581233951, 9.544037932, 10.525327521, 11.53237926, 12.57032081, 13.657564536, 14.802009319, 16], False, 3, [1, 1, 1, 1, 1, 1, 1, 1, 1, 1, 1, 1, 1, 1, 1, 1, 1, 1, 1], False),
    Part.BSplineCurve([App.Vector(0.606714, 0.172674, 0), App.Vector(0.606847, 0.16473, 0), App.Vector(0.607109, 0.149154, 0), App.Vector(0.610219, 0.126423, 0), App.Vector(0.614368, 0.104728, 0), App.Vector(0.620982, 0.084291, 0), App.Vector(0.62895, 0.064815, 0), App.Vector(0.639306, 0.046748, 0), App.Vector(0.650966, 0.029548, 0), App.Vector(0.664628, 0.013793, 0), App.Vector(0.679732, -0.0005, 0), App.Vector(0.696228, -0.012957, 0), App.Vector(0.713908, -0.023621, 0), App.Vector(0.732937, -0.032204, 0), App.Vector(0.7532, -0.038814, 0), App.Vector(0.774652, -0.043681, 0), App.Vector(0.797386, -0.046579, 0), App.Vector(0.812956, -0.046869, 0), App.Vector(0.820897, -0.047017, 0)], [4, 1, 1, 1, 1, 1, 1, 1, 1, 1, 1, 1, 1, 1, 1, 1, 4], [0, 1.102204012, 2.160993585, 3.181057555, 4.164839289, 5.138418409, 6.097303793, 7.050641095, 8.019669129, 8.986440483, 9.932879371, 10.884360123, 11.847412593, 12.824617322, 13.839006415, 14.897795988, 16], False, 3, [1, 1, 1, 1, 1, 1, 1, 1, 1, 1, 1, 1, 1, 1, 1, 1, 1, 1, 1], False),
    Part.BSplineCurve([App.Vector(0.824422, 0.418367, 0), App.Vector(0.816702, 0.418133, 0), App.Vector(0.801494, 0.417673, 0), App.Vector(0.779203, 0.414705, 0), App.Vector(0.758063, 0.409022, 0), App.Vector(0.73793, 0.401484, 0), App.Vector(0.718583, 0.39216, 0), App.Vector(0.700722, 0.379942, 0), App.Vector(0.683602, 0.366096, 0), App.Vector(0.667908, 0.350033, 0), App.Vector(0.653572, 0.332422, 0), App.Vector(0.640941, 0.313428, 0), App.Vector(0.630304, 0.293041, 0), App.Vector(0.6218, 0.271347, 0), App.Vector(0.614851, 0.248535, 0), App.Vector(0.610078, 0.224401, 0), App.Vector(0.60714, 0.19897, 0), App.Vector(0.606858, 0.18157, 0), App.Vector(0.606714, 0.172674, 0)], [4, 1, 1, 1, 1, 1, 1, 1, 1, 1, 1, 1, 1, 1, 1, 1, 4], [0, 1.007165334, 1.984118292, 2.925321257, 3.856078893, 4.785899085, 5.718627206, 6.671847665, 7.654235469, 8.641842333, 9.630378272, 10.624608936, 11.635186472, 12.665777387, 13.731187195, 14.840042241, 16], False, 3, [1, 1, 1, 1, 1, 1, 1, 1, 1, 1, 1, 1, 1, 1, 1, 1, 1, 1, 1], False),
    Part.BSplineCurve([App.Vector(1.029791, 0.183251, 0), App.Vector(1.029632, 0.192072, 0), App.Vector(1.029324, 0.209242, 0), App.Vector(1.026619, 0.234292, 0), App.Vector(1.022267, 0.257882, 0), App.Vector(1.016158, 0.280148, 0), App.Vector(1.007863, 0.300852, 0), App.Vector(0.998254, 0.320479, 0), App.Vector(0.986502, 0.338485, 0), App.Vector(0.973242, 0.355112, 0), App.Vector(0.958637, 0.369985, 0), App.Vector(0.942731, 0.382952, 0), App.Vector(0.925824, 0.394068, 0), App.Vector(0.90751, 0.402808, 0), App.Vector(0.888391, 0.41001, 0), App.Vector(0.868007, 0.414717, 0), App.Vector(0.846639, 0.418015, 0), App.Vector(0.831928, 0.418248, 0), App.Vector(0.824422, 0.418367, 0)], [4, 1, 1, 1, 1, 1, 1, 1, 1, 1, 1, 1, 1, 1, 1, 1, 4], [0, 1.20361398, 2.342757417, 3.433960756, 4.474970456, 5.487648377, 6.473933575, 7.452701285, 8.415527761, 9.372491588, 10.291530068, 11.211879743, 12.12647906, 13.055739058, 13.994253148, 14.97671008, 16], False, 3, [1, 1, 1, 1, 1, 1, 1, 1, 1, 1, 1, 1, 1, 1, 1, 1, 1, 1, 1], False),
], False)
sketch4.addConstraint([
    Sketcher.Constraint("Block", 2),
    Sketcher.Constraint("Block", 3),
    Sketcher.Constraint("Block", 4),
    Sketcher.Constraint("Block", 5),
    Sketcher.Constraint("Block", 9),
    Sketcher.Constraint("Block", 10),
    Sketcher.Constraint("Block", 11),
    Sketcher.Constraint("Block", 15),
    Sketcher.Constraint("Block", 16),
    Sketcher.Constraint("Block", 17),
    Sketcher.Constraint("Block", 20),
    Sketcher.Constraint("Block", 21),
    Sketcher.Constraint("Block", 22),
    Sketcher.Constraint("Block", 23),
    Sketcher.Constraint("Block", 24),
    Sketcher.Constraint("Block", 25),
    Sketcher.Constraint("Block", 26),
    Sketcher.Constraint("Block", 27),
    Sketcher.Constraint("Block", 28),
    Sketcher.Constraint("Block", 29),
    Sketcher.Constraint("Block", 30),
    Sketcher.Constraint("Block", 31),
    Sketcher.Constraint("Block", 32),
    Sketcher.Constraint("Coincident", 0, 2, 1, 1),
    Sketcher.Constraint("Coincident", 1, 2, 2, 2),
    Sketcher.Constraint("Coincident", 5, 1, 6, 1),
    Sketcher.Constraint("Coincident", 6, 2, 0, 1),
    Sketcher.Constraint("Coincident", 7, 2, 8, 1),
    Sketcher.Constraint("Coincident", 8, 2, 9, 2),
    Sketcher.Constraint("Coincident", 11, 1, 12, 1),
    Sketcher.Constraint("Coincident", 12, 2, 7, 1),
    Sketcher.Constraint("Coincident", 13, 2, 14, 1),
    Sketcher.Constraint("Coincident", 14, 2, 15, 2),
    Sketcher.Constraint("Coincident", 17, 1, 18, 1),
    Sketcher.Constraint("Coincident", 18, 2, 13, 1),
    Sketcher.Constraint("Coincident", 19, 2, 20, 2),
    Sketcher.Constraint("Coincident", 28, 1, 19, 1),
    Sketcher.Constraint("Vertical", 0),
    Sketcher.Constraint("Horizontal", 1),
    Sketcher.Constraint("Horizontal", 6),
    Sketcher.Constraint("Vertical", 7),
    Sketcher.Constraint("Horizontal", 8),
    Sketcher.Constraint("Horizontal", 12),
    Sketcher.Constraint("Vertical", 13),
    Sketcher.Constraint("Horizontal", 14),
    Sketcher.Constraint("Horizontal", 18),
    Sketcher.Constraint("Vertical", 12, 2, 13, 2),
    Sketcher.Constraint("DistanceX", 1, 1, 1, 2, Q("0.412941 mm")),
    Sketcher.Constraint("DistanceX", 8, 1, 8, 2, Q("0.242388 mm")),
])
pad3 = body.newObject("PartDesign::Pad", "Pad002")
pad3.Profile = sketch4
pad3.Length = 0.01

sketch5 = body.newObject("Sketcher::SketchObject", "Sketch004")
sketch5.AttachmentSupport = (doc.getObject("XY_Plane"), [""])
sketch5.MapMode = "FlatFace"
sketch5.AttachmentOffset = App.Placement(App.Vector(0, 0, 0.05), App.Rotation())
sketch5.addGeometry([
    Part.LineSegment(App.Vector(1.35, 0.4, 0), App.Vector(1, 0.4, 0)),
    Part.ArcOfCircle(Part.Circle(App.Vector(1, 0, 0), App.Vector(0, 0, 1), 0.4), math.radians(90), math.radians(270)),
    Part.LineSegment(App.Vector(1, -0.4, 0), App.Vector(1.35, -0.4, 0)),
    Part.ArcOfCircle(Part.Circle(App.Vector(1.35, -0.65, 0), App.Vector(0, 0, 1), 0.25), math.radians(-26), math.radians(90)),
    Part.ArcOfCircle(Part.Circle(App.Vector(0, 0, 0), App.Vector(0, 0, 1), 1.75), math.radians(-154), math.radians(-26)),
    Part.ArcOfCircle(Part.Circle(App.Vector(-1.35, -0.65, 0), App.Vector(0, 0, 1), 0.25), math.radians(90), math.radians(206)),
    Part.LineSegment(App.Vector(-1.35, -0.4, 0), App.Vector(-1, -0.4, 0)),
    Part.ArcOfCircle(Part.Circle(App.Vector(-1, 0, 0), App.Vector(0, 0, 1), 0.4), math.radians(-90), math.radians(90)),
    Part.LineSegment(App.Vector(-1, 0.4, 0), App.Vector(-1.35, 0.4, 0)),
    Part.ArcOfCircle(Part.Circle(App.Vector(-1.35, 0.65, 0), App.Vector(0, 0, 1), 0.25), math.radians(154), math.radians(270)),
    Part.ArcOfCircle(Part.Circle(App.Vector(0, 0, 0), App.Vector(0, 0, 1), 1.75), math.radians(26), math.radians(154)),
    Part.ArcOfCircle(Part.Circle(App.Vector(1.35, 0.65, 0), App.Vector(0, 0, 1), 0.25), math.radians(-90), math.radians(26)),
], False)
sketch5.addConstraint([
    Sketcher.Constraint("Tangent", 0, 2, 1, 1),
    Sketcher.Constraint("Tangent", 1, 2, 2, 1),
    Sketcher.Constraint("Tangent", 2, 2, 3, 2),
    Sketcher.Constraint("Tangent", 3, 1, 4, 2),
    Sketcher.Constraint("Tangent", 4, 1, 5, 2),
    Sketcher.Constraint("Tangent", 5, 1, 6, 1),
    Sketcher.Constraint("Tangent", 6, 2, 7, 1),
    Sketcher.Constraint("Tangent", 7, 2, 8, 1),
    Sketcher.Constraint("Tangent", 8, 2, 9, 2),
    Sketcher.Constraint("Tangent", 9, 1, 10, 2),
    Sketcher.Constraint("Tangent", 10, 1, 11, 2),
    Sketcher.Constraint("Tangent", 11, 1, 0, 1),
    Sketcher.Constraint("Horizontal", 0),
    Sketcher.Constraint("Horizontal", 2),
    Sketcher.Constraint("Horizontal", 6),
    Sketcher.Constraint("Horizontal", 8),
    Sketcher.Constraint("Coincident", 4, 3, -1, 1),
    Sketcher.Constraint("Coincident", 10, 3, -1, 1),
    Sketcher.Constraint("Equal", 3, 5),
    Sketcher.Constraint("Equal", 1, 7),
    Sketcher.Constraint("Equal", 5, 9),
    Sketcher.Constraint("Equal", 4, 10),
    Sketcher.Constraint("Equal", 9, 11),
    Sketcher.Constraint("Symmetric", 1, 3, 7, 3, -1, 1),
    Sketcher.Constraint("PointOnObject", 1, 3, -1),
    Sketcher.Constraint("Radius", 1, Q("0.4 mm")),
    Sketcher.Constraint("Radius", 3, Q("0.25 mm")),
    Sketcher.Constraint("Radius", 4, Q("1.75 mm")),
    Sketcher.Constraint("DistanceX", -1, 1, 1, 3, Q("1 mm")),
])
pad4 = body.newObject("PartDesign::Pad", "Pad003")
pad4.Profile = sketch5
pad4.Length = 0.05
pad4.Reversed = True

doc.recompute()
